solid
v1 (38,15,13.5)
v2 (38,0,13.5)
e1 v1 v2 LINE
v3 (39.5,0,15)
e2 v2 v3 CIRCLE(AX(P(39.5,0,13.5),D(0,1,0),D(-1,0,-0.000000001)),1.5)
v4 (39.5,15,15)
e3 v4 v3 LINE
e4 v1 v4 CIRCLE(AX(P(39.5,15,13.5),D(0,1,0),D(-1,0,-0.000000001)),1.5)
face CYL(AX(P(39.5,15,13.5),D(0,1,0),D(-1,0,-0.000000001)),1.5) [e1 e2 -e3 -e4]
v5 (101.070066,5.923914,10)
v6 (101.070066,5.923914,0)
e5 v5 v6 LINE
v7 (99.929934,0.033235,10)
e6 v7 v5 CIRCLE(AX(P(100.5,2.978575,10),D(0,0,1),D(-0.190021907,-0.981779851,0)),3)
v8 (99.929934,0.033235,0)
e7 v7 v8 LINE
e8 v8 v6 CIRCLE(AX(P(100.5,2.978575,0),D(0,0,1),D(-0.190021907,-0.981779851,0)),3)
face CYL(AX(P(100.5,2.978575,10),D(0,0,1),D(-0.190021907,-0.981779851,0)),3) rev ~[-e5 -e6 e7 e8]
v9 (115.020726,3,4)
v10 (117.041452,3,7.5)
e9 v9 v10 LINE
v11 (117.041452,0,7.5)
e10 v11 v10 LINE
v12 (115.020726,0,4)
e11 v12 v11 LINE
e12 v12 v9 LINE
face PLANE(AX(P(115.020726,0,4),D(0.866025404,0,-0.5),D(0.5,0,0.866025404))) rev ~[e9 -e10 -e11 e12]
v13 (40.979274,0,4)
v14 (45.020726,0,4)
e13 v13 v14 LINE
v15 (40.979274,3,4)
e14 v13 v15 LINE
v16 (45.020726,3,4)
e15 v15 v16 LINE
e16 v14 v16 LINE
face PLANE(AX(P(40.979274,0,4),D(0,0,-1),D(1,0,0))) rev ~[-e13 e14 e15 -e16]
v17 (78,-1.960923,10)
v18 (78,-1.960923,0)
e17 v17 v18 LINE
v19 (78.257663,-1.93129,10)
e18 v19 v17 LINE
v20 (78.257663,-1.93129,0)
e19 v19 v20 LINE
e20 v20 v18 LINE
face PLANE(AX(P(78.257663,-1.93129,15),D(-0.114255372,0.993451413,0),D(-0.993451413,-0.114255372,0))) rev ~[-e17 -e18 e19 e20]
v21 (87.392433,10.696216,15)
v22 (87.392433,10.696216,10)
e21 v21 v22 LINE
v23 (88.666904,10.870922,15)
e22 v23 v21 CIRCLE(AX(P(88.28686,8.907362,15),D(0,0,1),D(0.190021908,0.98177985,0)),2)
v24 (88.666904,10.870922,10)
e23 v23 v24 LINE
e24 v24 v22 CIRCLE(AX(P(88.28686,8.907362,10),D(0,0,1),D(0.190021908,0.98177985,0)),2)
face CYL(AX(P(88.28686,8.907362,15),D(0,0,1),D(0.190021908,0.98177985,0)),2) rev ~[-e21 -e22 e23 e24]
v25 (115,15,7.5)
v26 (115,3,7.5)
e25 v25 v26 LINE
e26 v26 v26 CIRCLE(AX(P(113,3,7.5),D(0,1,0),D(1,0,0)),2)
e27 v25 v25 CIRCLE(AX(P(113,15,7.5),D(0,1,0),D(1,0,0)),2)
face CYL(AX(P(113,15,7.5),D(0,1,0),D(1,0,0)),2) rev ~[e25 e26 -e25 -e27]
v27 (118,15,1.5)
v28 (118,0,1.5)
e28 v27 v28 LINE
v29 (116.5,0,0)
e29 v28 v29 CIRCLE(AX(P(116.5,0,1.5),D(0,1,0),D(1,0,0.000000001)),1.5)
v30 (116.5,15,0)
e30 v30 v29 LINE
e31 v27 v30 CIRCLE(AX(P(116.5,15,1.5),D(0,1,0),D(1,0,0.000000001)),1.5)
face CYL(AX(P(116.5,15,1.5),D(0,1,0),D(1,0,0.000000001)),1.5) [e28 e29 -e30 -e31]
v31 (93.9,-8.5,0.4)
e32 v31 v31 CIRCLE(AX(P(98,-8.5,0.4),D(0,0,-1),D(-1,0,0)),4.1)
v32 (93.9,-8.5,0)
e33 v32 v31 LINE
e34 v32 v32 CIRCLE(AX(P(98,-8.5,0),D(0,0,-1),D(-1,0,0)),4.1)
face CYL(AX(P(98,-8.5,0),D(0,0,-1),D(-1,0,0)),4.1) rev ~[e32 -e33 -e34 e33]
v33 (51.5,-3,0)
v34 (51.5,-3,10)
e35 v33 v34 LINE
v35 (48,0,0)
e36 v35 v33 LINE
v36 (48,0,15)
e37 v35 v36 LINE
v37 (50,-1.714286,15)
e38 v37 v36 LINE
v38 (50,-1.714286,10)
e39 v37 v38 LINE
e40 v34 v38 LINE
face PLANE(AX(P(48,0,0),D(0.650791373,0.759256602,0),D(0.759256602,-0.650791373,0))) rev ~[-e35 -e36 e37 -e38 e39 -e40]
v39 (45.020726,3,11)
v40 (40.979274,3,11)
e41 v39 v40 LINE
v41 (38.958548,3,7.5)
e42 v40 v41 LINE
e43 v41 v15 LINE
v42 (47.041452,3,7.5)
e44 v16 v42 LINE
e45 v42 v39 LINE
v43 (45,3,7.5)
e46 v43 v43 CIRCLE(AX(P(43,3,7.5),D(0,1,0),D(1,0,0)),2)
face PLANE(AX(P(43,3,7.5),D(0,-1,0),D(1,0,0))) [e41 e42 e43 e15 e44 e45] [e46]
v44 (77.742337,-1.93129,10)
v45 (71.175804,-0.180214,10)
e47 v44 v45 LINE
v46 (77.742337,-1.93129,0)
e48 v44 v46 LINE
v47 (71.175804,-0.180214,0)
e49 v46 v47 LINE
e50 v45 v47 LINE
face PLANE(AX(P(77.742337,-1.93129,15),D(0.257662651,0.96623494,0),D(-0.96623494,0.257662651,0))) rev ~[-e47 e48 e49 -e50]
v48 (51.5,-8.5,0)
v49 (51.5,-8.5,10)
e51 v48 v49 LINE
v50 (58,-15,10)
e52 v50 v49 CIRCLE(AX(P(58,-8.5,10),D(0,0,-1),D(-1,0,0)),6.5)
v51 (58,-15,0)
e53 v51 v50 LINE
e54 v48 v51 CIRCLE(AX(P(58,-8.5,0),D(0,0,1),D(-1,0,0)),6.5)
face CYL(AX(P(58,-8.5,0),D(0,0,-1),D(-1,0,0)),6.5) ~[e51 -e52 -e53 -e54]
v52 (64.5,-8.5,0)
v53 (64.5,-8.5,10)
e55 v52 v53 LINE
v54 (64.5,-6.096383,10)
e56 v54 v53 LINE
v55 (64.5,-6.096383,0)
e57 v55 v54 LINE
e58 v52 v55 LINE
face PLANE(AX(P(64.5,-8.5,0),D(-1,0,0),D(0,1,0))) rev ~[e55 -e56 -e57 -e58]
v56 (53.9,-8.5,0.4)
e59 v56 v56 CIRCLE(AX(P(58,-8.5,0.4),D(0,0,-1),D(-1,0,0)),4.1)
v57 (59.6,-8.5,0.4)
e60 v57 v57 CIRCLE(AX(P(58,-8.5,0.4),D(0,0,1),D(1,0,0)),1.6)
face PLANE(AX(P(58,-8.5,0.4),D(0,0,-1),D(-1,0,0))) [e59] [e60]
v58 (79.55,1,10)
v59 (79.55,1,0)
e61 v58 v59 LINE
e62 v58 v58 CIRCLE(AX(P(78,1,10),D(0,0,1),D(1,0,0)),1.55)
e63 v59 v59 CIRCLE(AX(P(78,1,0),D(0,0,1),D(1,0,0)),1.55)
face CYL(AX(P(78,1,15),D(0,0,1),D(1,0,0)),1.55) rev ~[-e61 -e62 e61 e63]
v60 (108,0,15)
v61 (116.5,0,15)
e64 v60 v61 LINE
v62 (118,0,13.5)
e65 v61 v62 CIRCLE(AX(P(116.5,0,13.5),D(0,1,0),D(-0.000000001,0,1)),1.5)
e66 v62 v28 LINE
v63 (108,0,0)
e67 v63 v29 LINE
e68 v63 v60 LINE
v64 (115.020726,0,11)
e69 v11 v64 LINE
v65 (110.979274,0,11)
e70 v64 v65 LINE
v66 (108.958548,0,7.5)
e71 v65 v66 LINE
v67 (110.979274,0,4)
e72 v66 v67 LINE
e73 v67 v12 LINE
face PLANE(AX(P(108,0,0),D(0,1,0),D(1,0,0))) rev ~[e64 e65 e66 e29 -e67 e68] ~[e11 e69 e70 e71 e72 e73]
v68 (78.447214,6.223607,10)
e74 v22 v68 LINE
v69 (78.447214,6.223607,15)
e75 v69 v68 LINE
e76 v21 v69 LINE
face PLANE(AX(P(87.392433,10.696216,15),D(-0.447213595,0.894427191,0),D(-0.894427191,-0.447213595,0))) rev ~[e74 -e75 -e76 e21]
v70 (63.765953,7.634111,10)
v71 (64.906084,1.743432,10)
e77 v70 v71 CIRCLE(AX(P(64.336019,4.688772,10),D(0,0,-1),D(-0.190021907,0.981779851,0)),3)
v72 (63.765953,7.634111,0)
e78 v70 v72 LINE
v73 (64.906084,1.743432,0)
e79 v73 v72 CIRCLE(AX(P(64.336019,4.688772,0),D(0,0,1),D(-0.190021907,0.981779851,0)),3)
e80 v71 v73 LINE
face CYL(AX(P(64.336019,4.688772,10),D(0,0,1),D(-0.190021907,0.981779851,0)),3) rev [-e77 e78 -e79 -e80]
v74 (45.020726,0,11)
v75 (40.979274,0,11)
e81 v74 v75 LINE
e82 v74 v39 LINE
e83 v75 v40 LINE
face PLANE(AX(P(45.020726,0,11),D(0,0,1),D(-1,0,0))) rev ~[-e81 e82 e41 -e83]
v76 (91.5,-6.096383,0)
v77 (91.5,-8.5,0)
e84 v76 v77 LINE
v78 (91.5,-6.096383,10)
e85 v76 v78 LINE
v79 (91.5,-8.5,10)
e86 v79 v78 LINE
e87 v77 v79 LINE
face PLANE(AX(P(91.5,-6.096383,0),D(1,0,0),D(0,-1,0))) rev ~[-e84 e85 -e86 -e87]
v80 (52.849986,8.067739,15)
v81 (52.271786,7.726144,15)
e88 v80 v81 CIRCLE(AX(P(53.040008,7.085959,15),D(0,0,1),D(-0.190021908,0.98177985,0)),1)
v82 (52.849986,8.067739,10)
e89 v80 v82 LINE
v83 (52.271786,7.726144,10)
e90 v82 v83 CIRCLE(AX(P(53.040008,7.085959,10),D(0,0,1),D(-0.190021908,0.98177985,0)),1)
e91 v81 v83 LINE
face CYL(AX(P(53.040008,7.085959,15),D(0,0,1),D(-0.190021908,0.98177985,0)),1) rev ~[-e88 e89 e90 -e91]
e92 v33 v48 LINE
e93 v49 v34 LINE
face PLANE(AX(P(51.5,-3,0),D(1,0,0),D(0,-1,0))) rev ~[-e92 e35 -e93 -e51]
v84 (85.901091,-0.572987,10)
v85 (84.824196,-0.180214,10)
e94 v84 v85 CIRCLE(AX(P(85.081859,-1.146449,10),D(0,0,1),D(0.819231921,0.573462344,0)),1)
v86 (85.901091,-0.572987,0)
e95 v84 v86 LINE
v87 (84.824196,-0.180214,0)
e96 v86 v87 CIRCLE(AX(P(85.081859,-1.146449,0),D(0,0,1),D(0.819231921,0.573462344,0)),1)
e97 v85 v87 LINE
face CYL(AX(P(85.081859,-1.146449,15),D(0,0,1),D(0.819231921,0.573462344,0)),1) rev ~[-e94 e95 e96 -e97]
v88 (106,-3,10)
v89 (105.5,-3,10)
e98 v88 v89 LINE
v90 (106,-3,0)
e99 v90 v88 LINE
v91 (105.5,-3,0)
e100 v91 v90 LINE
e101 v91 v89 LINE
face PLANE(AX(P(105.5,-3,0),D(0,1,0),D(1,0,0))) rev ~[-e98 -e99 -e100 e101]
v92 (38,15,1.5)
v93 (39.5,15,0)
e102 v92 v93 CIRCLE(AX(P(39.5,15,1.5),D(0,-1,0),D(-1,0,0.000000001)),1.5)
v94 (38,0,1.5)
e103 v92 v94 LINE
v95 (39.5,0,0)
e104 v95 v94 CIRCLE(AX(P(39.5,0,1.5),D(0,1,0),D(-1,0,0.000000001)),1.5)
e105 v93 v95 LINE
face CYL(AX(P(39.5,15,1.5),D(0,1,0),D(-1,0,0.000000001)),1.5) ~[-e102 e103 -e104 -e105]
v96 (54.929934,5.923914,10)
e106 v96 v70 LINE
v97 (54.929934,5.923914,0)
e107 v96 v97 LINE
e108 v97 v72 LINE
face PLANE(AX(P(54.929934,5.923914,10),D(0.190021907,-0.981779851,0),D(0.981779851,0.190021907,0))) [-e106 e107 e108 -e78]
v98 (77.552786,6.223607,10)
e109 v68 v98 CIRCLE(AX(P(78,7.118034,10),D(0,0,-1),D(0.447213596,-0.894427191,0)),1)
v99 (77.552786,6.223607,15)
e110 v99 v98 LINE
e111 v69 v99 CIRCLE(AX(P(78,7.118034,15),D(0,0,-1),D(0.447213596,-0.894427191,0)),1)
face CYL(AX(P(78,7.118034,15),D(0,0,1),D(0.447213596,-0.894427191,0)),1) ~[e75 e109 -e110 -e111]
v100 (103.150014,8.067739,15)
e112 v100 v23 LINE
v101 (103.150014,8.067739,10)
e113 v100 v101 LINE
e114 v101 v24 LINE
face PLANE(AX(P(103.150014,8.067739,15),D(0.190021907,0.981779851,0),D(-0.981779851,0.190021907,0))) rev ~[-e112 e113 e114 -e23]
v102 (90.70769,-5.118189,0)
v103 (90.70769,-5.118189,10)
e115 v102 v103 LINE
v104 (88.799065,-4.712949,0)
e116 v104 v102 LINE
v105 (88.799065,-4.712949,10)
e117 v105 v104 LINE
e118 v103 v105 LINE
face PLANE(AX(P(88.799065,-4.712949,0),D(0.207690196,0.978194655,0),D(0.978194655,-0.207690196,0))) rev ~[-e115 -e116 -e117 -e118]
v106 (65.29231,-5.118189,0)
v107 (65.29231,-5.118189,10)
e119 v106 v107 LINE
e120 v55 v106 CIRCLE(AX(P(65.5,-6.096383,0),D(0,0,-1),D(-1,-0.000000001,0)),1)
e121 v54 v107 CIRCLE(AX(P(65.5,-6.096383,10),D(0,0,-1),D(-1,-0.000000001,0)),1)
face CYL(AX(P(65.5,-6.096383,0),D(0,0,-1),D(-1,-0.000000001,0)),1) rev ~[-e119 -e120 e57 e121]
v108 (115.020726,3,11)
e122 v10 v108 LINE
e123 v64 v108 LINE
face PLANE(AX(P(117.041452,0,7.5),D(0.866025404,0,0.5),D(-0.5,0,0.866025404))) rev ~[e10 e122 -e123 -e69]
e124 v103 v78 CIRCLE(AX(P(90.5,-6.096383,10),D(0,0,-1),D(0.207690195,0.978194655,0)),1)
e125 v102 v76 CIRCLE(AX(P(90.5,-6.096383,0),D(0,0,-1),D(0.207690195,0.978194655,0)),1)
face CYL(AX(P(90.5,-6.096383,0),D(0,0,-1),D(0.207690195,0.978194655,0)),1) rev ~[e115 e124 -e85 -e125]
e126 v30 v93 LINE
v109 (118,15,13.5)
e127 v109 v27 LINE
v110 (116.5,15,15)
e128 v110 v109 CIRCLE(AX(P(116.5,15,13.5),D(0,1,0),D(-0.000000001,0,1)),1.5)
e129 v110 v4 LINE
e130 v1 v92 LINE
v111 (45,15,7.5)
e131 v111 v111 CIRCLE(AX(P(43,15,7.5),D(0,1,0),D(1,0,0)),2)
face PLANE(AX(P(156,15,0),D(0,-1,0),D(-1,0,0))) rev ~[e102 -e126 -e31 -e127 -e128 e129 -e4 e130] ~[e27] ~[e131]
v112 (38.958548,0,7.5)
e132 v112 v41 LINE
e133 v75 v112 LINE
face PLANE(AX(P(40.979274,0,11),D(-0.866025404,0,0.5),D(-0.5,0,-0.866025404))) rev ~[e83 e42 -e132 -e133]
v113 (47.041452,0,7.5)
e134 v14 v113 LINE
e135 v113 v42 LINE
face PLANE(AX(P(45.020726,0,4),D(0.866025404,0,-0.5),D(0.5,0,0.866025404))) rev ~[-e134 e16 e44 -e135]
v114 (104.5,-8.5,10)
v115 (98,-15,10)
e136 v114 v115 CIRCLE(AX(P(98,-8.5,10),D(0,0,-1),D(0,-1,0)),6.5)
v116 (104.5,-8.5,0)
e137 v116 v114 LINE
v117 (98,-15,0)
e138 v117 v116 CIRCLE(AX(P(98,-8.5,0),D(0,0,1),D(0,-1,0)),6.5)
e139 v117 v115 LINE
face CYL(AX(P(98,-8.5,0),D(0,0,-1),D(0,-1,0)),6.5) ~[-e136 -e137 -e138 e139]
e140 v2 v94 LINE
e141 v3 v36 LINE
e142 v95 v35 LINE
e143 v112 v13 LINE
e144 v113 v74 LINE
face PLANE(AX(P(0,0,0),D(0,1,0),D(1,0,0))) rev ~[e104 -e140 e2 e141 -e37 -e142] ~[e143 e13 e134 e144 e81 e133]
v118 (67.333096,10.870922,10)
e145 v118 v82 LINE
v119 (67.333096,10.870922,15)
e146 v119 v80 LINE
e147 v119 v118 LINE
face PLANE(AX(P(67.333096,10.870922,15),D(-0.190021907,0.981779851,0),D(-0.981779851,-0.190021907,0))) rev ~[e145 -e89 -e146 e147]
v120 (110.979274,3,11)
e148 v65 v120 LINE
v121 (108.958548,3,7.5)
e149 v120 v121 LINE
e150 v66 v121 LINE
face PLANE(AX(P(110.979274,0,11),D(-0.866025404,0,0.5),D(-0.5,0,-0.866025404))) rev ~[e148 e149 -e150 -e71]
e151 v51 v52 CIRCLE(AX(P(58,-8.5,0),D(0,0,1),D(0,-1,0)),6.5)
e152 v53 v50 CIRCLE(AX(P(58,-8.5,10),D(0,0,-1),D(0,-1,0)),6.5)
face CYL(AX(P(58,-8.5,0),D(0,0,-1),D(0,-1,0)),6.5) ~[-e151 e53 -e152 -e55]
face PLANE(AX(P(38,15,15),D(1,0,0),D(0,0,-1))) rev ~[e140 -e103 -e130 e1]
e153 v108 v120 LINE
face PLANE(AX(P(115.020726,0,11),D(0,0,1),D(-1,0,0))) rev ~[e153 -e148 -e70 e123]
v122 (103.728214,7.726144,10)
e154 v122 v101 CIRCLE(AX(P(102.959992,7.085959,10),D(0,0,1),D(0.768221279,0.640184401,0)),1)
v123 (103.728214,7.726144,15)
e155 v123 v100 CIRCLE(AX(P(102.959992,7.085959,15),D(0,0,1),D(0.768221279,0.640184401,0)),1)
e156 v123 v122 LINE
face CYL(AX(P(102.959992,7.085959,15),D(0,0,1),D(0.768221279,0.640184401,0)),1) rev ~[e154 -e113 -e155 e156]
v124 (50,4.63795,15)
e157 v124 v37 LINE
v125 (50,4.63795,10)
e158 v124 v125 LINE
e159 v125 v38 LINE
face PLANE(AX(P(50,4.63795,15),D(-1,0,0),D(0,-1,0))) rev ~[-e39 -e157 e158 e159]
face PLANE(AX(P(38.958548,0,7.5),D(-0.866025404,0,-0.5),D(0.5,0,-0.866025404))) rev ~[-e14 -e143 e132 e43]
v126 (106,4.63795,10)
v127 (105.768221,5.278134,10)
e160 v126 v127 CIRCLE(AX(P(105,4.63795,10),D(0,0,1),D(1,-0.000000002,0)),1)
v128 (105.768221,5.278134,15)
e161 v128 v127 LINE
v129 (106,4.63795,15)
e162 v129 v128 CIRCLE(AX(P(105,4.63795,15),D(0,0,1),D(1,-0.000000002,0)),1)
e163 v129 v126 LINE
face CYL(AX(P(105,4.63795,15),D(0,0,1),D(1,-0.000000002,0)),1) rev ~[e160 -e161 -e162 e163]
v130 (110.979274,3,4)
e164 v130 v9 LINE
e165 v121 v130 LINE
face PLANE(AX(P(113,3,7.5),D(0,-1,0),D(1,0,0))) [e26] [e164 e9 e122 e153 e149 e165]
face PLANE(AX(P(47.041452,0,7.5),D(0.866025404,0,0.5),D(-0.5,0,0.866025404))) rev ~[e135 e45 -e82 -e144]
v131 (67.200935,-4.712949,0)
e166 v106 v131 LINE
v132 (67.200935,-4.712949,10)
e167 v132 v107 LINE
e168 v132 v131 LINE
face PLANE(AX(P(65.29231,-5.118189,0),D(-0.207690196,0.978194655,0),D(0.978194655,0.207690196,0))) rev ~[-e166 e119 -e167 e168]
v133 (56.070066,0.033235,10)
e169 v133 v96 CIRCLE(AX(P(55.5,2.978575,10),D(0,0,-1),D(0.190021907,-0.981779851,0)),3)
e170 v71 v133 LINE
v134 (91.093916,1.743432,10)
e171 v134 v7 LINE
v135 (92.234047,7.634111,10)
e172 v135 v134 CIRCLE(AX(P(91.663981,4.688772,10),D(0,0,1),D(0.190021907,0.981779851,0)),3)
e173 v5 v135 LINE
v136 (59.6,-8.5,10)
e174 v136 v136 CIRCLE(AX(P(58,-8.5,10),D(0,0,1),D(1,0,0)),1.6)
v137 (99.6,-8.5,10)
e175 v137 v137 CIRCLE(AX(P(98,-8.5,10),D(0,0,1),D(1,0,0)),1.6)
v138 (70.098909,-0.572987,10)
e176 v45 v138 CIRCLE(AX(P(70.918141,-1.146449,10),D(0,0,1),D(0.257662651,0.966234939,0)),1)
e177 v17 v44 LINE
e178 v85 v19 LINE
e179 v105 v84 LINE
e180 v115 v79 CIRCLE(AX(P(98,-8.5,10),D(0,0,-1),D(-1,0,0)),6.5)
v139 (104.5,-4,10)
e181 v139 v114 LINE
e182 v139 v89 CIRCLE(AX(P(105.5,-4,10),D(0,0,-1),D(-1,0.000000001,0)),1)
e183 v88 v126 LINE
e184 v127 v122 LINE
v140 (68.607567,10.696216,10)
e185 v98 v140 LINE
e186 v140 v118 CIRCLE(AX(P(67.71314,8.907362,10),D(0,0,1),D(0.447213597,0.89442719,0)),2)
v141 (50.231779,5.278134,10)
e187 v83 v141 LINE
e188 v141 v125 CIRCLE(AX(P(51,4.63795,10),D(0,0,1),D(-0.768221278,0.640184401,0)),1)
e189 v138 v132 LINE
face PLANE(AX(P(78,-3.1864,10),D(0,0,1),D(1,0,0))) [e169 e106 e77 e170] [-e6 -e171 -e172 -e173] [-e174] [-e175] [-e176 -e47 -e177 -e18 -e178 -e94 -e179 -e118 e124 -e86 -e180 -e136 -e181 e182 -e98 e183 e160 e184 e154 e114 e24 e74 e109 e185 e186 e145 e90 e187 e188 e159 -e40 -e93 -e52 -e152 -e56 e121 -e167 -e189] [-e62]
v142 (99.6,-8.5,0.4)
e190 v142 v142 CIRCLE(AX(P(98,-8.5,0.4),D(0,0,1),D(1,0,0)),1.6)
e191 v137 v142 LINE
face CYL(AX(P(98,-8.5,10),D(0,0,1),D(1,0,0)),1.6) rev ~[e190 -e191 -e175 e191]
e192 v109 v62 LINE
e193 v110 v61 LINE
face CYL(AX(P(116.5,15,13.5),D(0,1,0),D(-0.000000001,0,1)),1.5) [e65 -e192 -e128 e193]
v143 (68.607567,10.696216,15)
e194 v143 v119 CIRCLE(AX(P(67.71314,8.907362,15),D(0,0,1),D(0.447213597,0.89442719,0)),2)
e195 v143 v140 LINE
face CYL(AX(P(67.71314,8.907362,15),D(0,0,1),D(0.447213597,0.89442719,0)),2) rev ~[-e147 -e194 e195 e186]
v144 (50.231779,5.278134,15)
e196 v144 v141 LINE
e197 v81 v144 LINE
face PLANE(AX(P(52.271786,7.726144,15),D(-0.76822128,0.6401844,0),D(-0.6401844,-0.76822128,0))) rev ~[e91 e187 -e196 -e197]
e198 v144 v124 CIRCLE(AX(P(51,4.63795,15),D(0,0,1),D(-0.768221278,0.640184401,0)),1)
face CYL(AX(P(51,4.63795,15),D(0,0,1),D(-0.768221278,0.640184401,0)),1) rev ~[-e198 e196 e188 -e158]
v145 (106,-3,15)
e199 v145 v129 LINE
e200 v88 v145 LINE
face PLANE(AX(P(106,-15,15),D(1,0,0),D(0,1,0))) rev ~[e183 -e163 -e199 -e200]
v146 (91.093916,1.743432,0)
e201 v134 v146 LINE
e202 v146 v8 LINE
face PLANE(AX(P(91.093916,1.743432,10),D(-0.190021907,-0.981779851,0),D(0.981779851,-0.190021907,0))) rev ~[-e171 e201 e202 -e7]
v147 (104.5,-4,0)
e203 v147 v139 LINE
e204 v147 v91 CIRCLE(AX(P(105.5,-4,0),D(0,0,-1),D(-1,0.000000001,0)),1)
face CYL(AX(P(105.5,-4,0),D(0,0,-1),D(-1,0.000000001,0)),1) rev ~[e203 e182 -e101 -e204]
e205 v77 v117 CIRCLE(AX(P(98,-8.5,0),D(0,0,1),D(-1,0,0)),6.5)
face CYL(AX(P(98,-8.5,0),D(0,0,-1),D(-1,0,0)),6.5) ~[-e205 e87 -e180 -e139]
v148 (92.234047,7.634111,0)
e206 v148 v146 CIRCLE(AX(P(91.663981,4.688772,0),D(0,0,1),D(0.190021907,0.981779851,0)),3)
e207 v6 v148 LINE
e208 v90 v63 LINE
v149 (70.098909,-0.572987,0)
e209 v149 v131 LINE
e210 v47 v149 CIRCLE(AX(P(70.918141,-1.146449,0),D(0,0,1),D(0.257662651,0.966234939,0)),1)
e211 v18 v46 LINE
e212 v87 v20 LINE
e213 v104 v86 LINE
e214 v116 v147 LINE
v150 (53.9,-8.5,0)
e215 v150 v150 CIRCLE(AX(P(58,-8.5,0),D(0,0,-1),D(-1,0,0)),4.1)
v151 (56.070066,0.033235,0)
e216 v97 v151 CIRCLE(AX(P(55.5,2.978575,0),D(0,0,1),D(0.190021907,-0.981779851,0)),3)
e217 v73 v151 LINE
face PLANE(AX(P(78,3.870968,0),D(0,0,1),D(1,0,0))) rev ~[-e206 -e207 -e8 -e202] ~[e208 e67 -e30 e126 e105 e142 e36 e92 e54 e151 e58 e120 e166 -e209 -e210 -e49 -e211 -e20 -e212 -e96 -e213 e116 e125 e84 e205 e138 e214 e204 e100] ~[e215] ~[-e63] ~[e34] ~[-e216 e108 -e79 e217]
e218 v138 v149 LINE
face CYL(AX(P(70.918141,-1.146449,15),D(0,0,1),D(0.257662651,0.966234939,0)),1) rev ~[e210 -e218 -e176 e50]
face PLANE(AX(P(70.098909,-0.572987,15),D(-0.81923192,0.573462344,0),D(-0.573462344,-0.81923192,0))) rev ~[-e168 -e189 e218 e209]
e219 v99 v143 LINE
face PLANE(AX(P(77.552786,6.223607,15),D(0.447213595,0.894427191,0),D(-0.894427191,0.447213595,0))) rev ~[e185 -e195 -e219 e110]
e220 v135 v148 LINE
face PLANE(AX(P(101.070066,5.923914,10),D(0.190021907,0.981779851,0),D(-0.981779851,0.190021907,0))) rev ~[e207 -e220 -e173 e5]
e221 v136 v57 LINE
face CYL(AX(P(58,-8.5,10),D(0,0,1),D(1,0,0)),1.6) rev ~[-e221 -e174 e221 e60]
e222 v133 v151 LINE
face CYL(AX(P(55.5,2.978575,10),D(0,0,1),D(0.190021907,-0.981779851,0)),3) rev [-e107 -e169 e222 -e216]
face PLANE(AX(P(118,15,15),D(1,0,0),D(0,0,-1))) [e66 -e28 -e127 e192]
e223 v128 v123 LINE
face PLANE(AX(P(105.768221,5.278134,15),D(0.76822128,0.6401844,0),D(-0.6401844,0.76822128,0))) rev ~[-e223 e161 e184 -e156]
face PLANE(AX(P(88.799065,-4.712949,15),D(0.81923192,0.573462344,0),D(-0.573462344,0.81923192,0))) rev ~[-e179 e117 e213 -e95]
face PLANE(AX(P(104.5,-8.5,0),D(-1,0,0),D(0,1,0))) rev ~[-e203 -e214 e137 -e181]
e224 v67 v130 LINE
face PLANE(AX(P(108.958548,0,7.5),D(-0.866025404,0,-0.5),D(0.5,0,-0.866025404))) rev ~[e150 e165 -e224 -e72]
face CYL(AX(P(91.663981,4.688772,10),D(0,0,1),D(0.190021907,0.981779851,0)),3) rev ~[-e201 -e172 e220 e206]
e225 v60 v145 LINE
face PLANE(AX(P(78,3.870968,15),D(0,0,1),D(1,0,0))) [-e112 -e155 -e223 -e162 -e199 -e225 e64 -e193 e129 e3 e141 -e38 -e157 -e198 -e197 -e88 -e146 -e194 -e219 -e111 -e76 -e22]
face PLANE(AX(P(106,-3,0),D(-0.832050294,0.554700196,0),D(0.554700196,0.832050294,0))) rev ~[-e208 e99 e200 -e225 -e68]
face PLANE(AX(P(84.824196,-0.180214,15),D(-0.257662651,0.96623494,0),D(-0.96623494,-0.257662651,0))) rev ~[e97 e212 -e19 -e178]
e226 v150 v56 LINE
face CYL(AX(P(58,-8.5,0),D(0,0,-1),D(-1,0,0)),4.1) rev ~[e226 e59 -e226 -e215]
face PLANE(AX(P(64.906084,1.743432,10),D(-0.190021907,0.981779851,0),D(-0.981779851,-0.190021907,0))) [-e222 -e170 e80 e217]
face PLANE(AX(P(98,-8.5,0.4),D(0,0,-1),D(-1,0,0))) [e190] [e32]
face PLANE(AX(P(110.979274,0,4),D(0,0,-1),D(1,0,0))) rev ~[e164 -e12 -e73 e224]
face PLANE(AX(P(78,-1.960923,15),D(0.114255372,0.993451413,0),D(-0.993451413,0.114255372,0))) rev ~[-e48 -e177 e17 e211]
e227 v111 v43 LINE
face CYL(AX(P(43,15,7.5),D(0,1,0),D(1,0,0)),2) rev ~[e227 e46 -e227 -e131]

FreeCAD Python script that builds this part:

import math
import FreeCAD as App
import Part
import Sketcher
from FreeCAD import Vector
Q = App.Units.Quantity

doc = App.newDocument("Part")
body = doc.addObject("PartDesign::Body", "Body")

# Sketch on XY plane
sketch1 = body.newObject("Sketcher::SketchObject", "Sketch")
sketch1.AttachmentSupport = (doc.getObject("XY_Plane"), [""])
sketch1.MapMode = "FlatFace"
sketch1.addGeometry([
    Part.LineSegment(Vector(0, 0, 0), Vector(48, 0, 0)),  # 0
    Part.LineSegment(Vector(48, 0, 0), Vector(48, -15, 0)),  # 1
    Part.LineSegment(Vector(48, -15, 0), Vector(108, -15, 0)),  # 2
    Part.LineSegment(Vector(108, -15, 0), Vector(108, 0, 0)),  # 3
    Part.LineSegment(Vector(108, 0, 0), Vector(156, 0, 0)),  # 4
    Part.LineSegment(Vector(156, 0, 0), Vector(156, 15, 0)),  # 5
    Part.LineSegment(Vector(156, 15, 0), Vector(0, 15, 0)),  # 6
    Part.LineSegment(Vector(0, 15, 0), Vector(0, 0, 0)),  # 7
], False)
sketch1.addConstraint([
    Sketcher.Constraint("Coincident", 0, 2, 1, 1),
    Sketcher.Constraint("Coincident", 1, 2, 2, 1),
    Sketcher.Constraint("Coincident", 2, 2, 3, 1),
    Sketcher.Constraint("Coincident", 3, 2, 4, 1),
    Sketcher.Constraint("Coincident", 4, 2, 5, 1),
    Sketcher.Constraint("Coincident", 5, 2, 6, 1),
    Sketcher.Constraint("Coincident", 6, 2, 7, 1),
    Sketcher.Constraint("Coincident", 7, 2, 0, 1),
    Sketcher.Constraint("Horizontal", 0),
    Sketcher.Constraint("Vertical", 1),
    Sketcher.Constraint("Horizontal", 2),
    Sketcher.Constraint("Vertical", 3),
    Sketcher.Constraint("Horizontal", 4),
    Sketcher.Constraint("Vertical", 5),
    Sketcher.Constraint("Horizontal", 6),
    Sketcher.Constraint("Vertical", 7),
    Sketcher.Constraint("Coincident", 7, 2, -1, 1),
    Sketcher.Constraint("PointOnObject", 3, 2, -1),
    Sketcher.Constraint("Equal", 0, 4),
    Sketcher.Constraint("Equal", 3, 5),
    Sketcher.Constraint("DistanceX", 0, 1, 0, 2, 48.0),
    Sketcher.Constraint("DistanceX", 2, 1, 2, 2, 60.0),
    Sketcher.Constraint("DistanceY", 1, 2, 1, 1, 15.0),
])
pad1 = body.newObject("PartDesign::Pad", "Pad")
pad1.Profile = sketch1
pad1.Length = 15

# Sketch on XY plane
sketch2 = body.newObject("Sketcher::SketchObject", "Sketch001")
sketch2.AttachmentSupport = (doc.getObject("XY_Plane"), [""])
sketch2.MapMode = "FlatFace"
sketch2.AttachmentOffset = App.Placement(Vector(0, 0, 15), App.Rotation())
sketch2.addGeometry([
    Part.LineSegment(Vector(77.552786, 6.223607, 0), Vector(68.607567, 10.696216, 0)),  # 0
    Part.ArcOfCircle(Part.Circle(Vector(67.71314, 8.907362, 0), Vector(0, 0, 1), 2), math.radians(63.434949), math.radians(100.954063)),  # 1
    Part.LineSegment(Vector(67.333096, 10.870922, 0), Vector(52.849986, 8.067739, 0)),  # 2
    Part.ArcOfCircle(Part.Circle(Vector(53.040008, 7.085959, 0), Vector(0, 0, 1), 1), math.radians(100.954063), math.radians(140.194429)),  # 3
    Part.LineSegment(Vector(52.271786, 7.726144, 0), Vector(50.231779, 5.278134, 0)),  # 4
    Part.ArcOfCircle(Part.Circle(Vector(51, 4.63795, 0), Vector(0, 0, 1), 1), math.radians(140.194429), math.radians(180)),  # 5
    Part.LineSegment(Vector(50, 4.63795, 0), Vector(50, -15, 0)),  # 6
    Part.LineSegment(Vector(50, -15, 0), Vector(106, -15, 0)),  # 7
    Part.LineSegment(Vector(106, -15, 0), Vector(106, 4.63795, 0)),  # 8
    Part.ArcOfCircle(Part.Circle(Vector(105, 4.63795, 0), Vector(0, 0, 1), 1), math.radians(0), math.radians(39.805571)),  # 9
    Part.LineSegment(Vector(105.768221, 5.278134, 0), Vector(103.728214, 7.726144, 0)),  # 10
    Part.ArcOfCircle(Part.Circle(Vector(102.959992, 7.085959, 0), Vector(0, 0, 1), 1), math.radians(39.805571), math.radians(79.045937)),  # 11
    Part.LineSegment(Vector(103.150014, 8.067739, 0), Vector(88.666904, 10.870922, 0)),  # 12
    Part.ArcOfCircle(Part.Circle(Vector(88.28686, 8.907362, 0), Vector(0, 0, 1), 2), math.radians(79.045937), math.radians(116.565051)),  # 13
    Part.LineSegment(Vector(87.392433, 10.696216, 0), Vector(78.447214, 6.223607, 0)),  # 14
    Part.ArcOfCircle(Part.Circle(Vector(78, 7.118034, 0), Vector(0, 0, 1), 1), math.radians(-116.565051), math.radians(-63.434949)),  # 15
], False)
sketch2.addConstraint([
    Sketcher.Constraint("Tangent", 0, 2, 1, 1),
    Sketcher.Constraint("Tangent", 1, 2, 2, 1),
    Sketcher.Constraint("Tangent", 2, 2, 3, 1),
    Sketcher.Constraint("Tangent", 3, 2, 4, 1),
    Sketcher.Constraint("Tangent", 4, 2, 5, 1),
    Sketcher.Constraint("Tangent", 5, 2, 6, 1),
    Sketcher.Constraint("Coincident", 6, 2, 7, 1),
    Sketcher.Constraint("Coincident", 7, 2, 8, 1),
    Sketcher.Constraint("Tangent", 8, 2, 9, 1),
    Sketcher.Constraint("Tangent", 9, 2, 10, 1),
    Sketcher.Constraint("Tangent", 10, 2, 11, 1),
    Sketcher.Constraint("Tangent", 11, 2, 12, 1),
    Sketcher.Constraint("Tangent", 12, 2, 13, 1),
    Sketcher.Constraint("Tangent", 13, 2, 14, 1),
    Sketcher.Constraint("Tangent", 14, 2, 15, 2),
    Sketcher.Constraint("Tangent", 15, 1, 0, 1),
    Sketcher.Constraint("Vertical", 6),
    Sketcher.Constraint("Horizontal", 7),
    Sketcher.Constraint("Vertical", 8),
    Sketcher.Constraint("Equal", 3, 5),
    Sketcher.Constraint("Equal", 5, 9),
    Sketcher.Constraint("Equal", 9, 11),
    Sketcher.Constraint("Equal", 1, 13),
    Sketcher.Constraint("Equal", 11, 15),
    Sketcher.Constraint("Horizontal", 5, 3, 9, 3),
    Sketcher.Constraint("Horizontal", 3, 3, 11, 3),
    Sketcher.Constraint("Horizontal", 1, 3, 13, 3),
    Sketcher.Constraint("Horizontal", 4, 2, 9, 2),
    Sketcher.Constraint("Horizontal", 1, 2, 12, 2),
    Sketcher.Constraint("Horizontal", 0, 2, 13, 2),
    Sketcher.Constraint("Radius", 1, 2.0),
    Sketcher.Constraint("Radius", 3, 1.0),
    Sketcher.Constraint("DistanceX", 7, 1, 7, 2, 56.0),
    Sketcher.Constraint("DistanceX", -1, 1, 5, 3, 51.0),
    Sketcher.Constraint("DistanceY", 6, 2, -1, 1, 15.0),
    Sketcher.Constraint("DistanceY", 6, 2, 6, 1, 19.63795),
    Sketcher.Constraint("DistanceX", 3, 2, 2, 2, 0.578199),
    Sketcher.Constraint("Distance", 0, 10.001059),
    Sketcher.Constraint("Distance", 2, 14.751892),
    Sketcher.Constraint("DistanceX", -1, 1, 1, 3, 67.71314),
    Sketcher.Constraint("DistanceY", -1, 1, 3, 3, 7.085959),
])
pocket1 = body.newObject("PartDesign::Pocket", "Pocket")
pocket1.Profile = sketch2
pocket1.Length = 5

# Sketch on XY plane
sketch3 = body.newObject("Sketcher::SketchObject", "Sketch002")
sketch3.AttachmentSupport = (doc.getObject("XY_Plane"), [""])
sketch3.MapMode = "FlatFace"
sketch3.AttachmentOffset = App.Placement(Vector(0, 0, 15), App.Rotation())
sketch3.addGeometry([
    Part.LineSegment(Vector(78.257663, -1.93129, 0), Vector(78, -1.960923, 0)),  # 0
    Part.LineSegment(Vector(78, -1.960923, 0), Vector(77.742337, -1.93129, 0)),  # 1
    Part.LineSegment(Vector(77.742337, -1.93129, 0), Vector(71.175804, -0.180214, 0)),  # 2
    Part.ArcOfCircle(Part.Circle(Vector(70.918141, -1.146449, 0), Vector(0, 0, 1), 1), math.radians(75.068583), math.radians(145.00798)),  # 3
    Part.LineSegment(Vector(70.098909, -0.572987, 0), Vector(67.200935, -4.712949, 0)),  # 4
    Part.ArcOfCircle(Part.Circle(Vector(68.020167, -5.286412, 0), Vector(0, 0, 1), 1), math.radians(145.00798), math.radians(183.627866)),  # 5
    Part.LineSegment(Vector(67.022171, -5.349688, 0), Vector(67.574639, -14.063276, 0)),  # 6
    Part.ArcOfCircle(Part.Circle(Vector(68.572635, -14, 0), Vector(0, 0, 1), 1), math.radians(-176.372134), math.radians(-90)),  # 7
    Part.LineSegment(Vector(68.572635, -15, 0), Vector(87.427365, -15, 0)),  # 8
    Part.ArcOfCircle(Part.Circle(Vector(87.427365, -14, 0), Vector(0, 0, 1), 1), math.radians(-90), math.radians(-3.627866)),  # 9
    Part.LineSegment(Vector(88.425361, -14.063276, 0), Vector(88.977829, -5.349688, 0)),  # 10
    Part.ArcOfCircle(Part.Circle(Vector(87.979833, -5.286412, 0), Vector(0, 0, 1), 1), math.radians(-3.627866), math.radians(34.99202)),  # 11
    Part.LineSegment(Vector(88.799065, -4.712949, 0), Vector(85.901091, -0.572987, 0)),  # 12
    Part.ArcOfCircle(Part.Circle(Vector(85.081859, -1.146449, 0), Vector(0, 0, 1), 1), math.radians(34.99202), math.radians(104.931417)),  # 13
    Part.LineSegment(Vector(84.824196, -0.180214, 0), Vector(78.257663, -1.93129, 0)),  # 14
], False)
sketch3.addConstraint([
    Sketcher.Constraint("Coincident", 0, 2, 1, 1),
    Sketcher.Constraint("Coincident", 1, 2, 2, 1),
    Sketcher.Constraint("Tangent", 2, 2, 3, 1),
    Sketcher.Constraint("Tangent", 3, 2, 4, 1),
    Sketcher.Constraint("Tangent", 4, 2, 5, 1),
    Sketcher.Constraint("Tangent", 5, 2, 6, 1),
    Sketcher.Constraint("Tangent", 6, 2, 7, 1),
    Sketcher.Constraint("Tangent", 7, 2, 8, 1),
    Sketcher.Constraint("Tangent", 8, 2, 9, 1),
    Sketcher.Constraint("Tangent", 9, 2, 10, 1),
    Sketcher.Constraint("Tangent", 10, 2, 11, 1),
    Sketcher.Constraint("Tangent", 11, 2, 12, 1),
    Sketcher.Constraint("Tangent", 12, 2, 13, 1),
    Sketcher.Constraint("Tangent", 13, 2, 14, 1),
    Sketcher.Constraint("Coincident", 14, 2, 0, 1),
    Sketcher.Constraint("Horizontal", 8),
    Sketcher.Constraint("Equal", 3, 5),
    Sketcher.Constraint("Equal", 5, 7),
    Sketcher.Constraint("Equal", 7, 9),
    Sketcher.Constraint("Equal", 9, 11),
    Sketcher.Constraint("Equal", 11, 13),
    Sketcher.Constraint("Horizontal", 5, 3, 11, 3),
    Sketcher.Constraint("Horizontal", 3, 3, 13, 3),
    Sketcher.Constraint("Horizontal", 6, 2, 9, 2),
    Sketcher.Constraint("Horizontal", 4, 2, 11, 2),
    Sketcher.Constraint("Horizontal", 2, 2, 13, 2),
    Sketcher.Constraint("Horizontal", 1, 2, 14, 2),
    Sketcher.Constraint("Equal", 0, 1),
    Sketcher.Constraint("Radius", 3, 1.0),
    Sketcher.Constraint("DistanceY", 7, 3, -1, 1, 14.0),
    Sketcher.Constraint("DistanceX", -1, 1, 0, 2, 78.0),
    Sketcher.Constraint("Distance", 2, 6.796001),
    Sketcher.Constraint("DistanceX", 8, 1, 8, 2, 18.854731),
    Sketcher.Constraint("DistanceX", 5, 3, 9, 3, 19.407198),
    Sketcher.Constraint("DistanceY", 4, 2, 3, 3, 3.5665),
    Sketcher.Constraint("DistanceX", 4, 2, 7, 3, 1.371699),
    Sketcher.Constraint("Distance", 0, 0.259361),
    Sketcher.Constraint("DistanceY", 3, 3, -1, 1, 1.146449),
    Sketcher.Constraint("DistanceY", 1, 2, -1, 1, 1.93129),
])
pocket2 = body.newObject("PartDesign::Pocket", "Pocket001")
pocket2.Profile = sketch3
pocket2.Length = 35

# Sketch on XY plane
sketch4 = body.newObject("Sketcher::SketchObject", "Sketch003")
sketch4.AttachmentSupport = (doc.getObject("XY_Plane"), [""])
sketch4.MapMode = "FlatFace"
sketch4.AttachmentOffset = App.Placement(Vector(0, 0, 15), App.Rotation())
sketch4.addGeometry(Part.Circle(Vector(78, 1, 0), Vector(0, 0, 1), 1.55), False)
sketch4.addConstraint([
    Sketcher.Constraint("Diameter", 0, 3.1),
    Sketcher.Constraint("DistanceX", -1, 1, 0, 3, 78.0),
    Sketcher.Constraint("DistanceY", -1, 1, 0, 3, 1.0),
])
pocket3 = body.newObject("PartDesign::Pocket", "Pocket002")
pocket3.Profile = sketch4
pocket3.Length = 32

# Sketch on XY plane
sketch5 = body.newObject("Sketcher::SketchObject", "Sketch004")
sketch5.AttachmentSupport = (doc.getObject("XY_Plane"), [""])
sketch5.MapMode = "FlatFace"
sketch5.AttachmentOffset = App.Placement(Vector(0, 0, 10), App.Rotation())
sketch5.addGeometry([
    Part.Circle(Vector(98, -8.5, 0), Vector(0, 0, 1), 1.6),  # 0
    Part.Circle(Vector(58, -8.5, 0), Vector(0, 0, 1), 1.6),  # 1
    Part.LineSegment(Vector(63.765953, 7.634111, 0), Vector(54.929934, 5.923914, 0)),  # 2
    Part.ArcOfCircle(Part.Circle(Vector(55.5, 2.978575, 0), Vector(0, 0, 1), 3), math.radians(100.954063), math.radians(280.954063)),  # 3
    Part.LineSegment(Vector(56.070066, 0.033235, 0), Vector(64.906084, 1.743432, 0)),  # 4
    Part.ArcOfCircle(Part.Circle(Vector(64.336019, 4.688772, 0), Vector(0, 0, 1), 3), math.radians(-79.045937), math.radians(100.954063)),  # 5
    Part.LineSegment(Vector(101.070066, 5.923914, 0), Vector(92.234047, 7.634111, 0)),  # 6
    Part.ArcOfCircle(Part.Circle(Vector(91.663981, 4.688772, 0), Vector(0, 0, 1), 3), math.radians(79.045937), math.radians(259.045937)),  # 7
    Part.LineSegment(Vector(91.093916, 1.743432, 0), Vector(99.929934, 0.033235, 0)),  # 8
    Part.ArcOfCircle(Part.Circle(Vector(100.5, 2.978575, 0), Vector(0, 0, 1), 3), math.radians(-100.954063), math.radians(79.045937)),  # 9
], False)
sketch5.addConstraint([
    Sketcher.Constraint("Tangent", 2, 2, 3, 1),
    Sketcher.Constraint("Tangent", 3, 2, 4, 1),
    Sketcher.Constraint("Tangent", 4, 2, 5, 1),
    Sketcher.Constraint("Tangent", 5, 2, 2, 1),
    Sketcher.Constraint("Tangent", 6, 2, 7, 1),
    Sketcher.Constraint("Tangent", 7, 2, 8, 1),
    Sketcher.Constraint("Tangent", 8, 2, 9, 1),
    Sketcher.Constraint("Tangent", 9, 2, 6, 1),
    Sketcher.Constraint("Equal", 0, 1),
    Sketcher.Constraint("Equal", 3, 5),
    Sketcher.Constraint("Equal", 5, 7),
    Sketcher.Constraint("Equal", 7, 9),
    Sketcher.Constraint("Horizontal", 0, 3, 1, 3),
    Sketcher.Constraint("Horizontal", 5, 3, 7, 3),
    Sketcher.Constraint("Horizontal", 3, 3, 9, 3),
    Sketcher.Constraint("Horizontal", 5, 2, 6, 2),
    Sketcher.Constraint("Radius", 3, 3.0),
    Sketcher.Constraint("Diameter", 0, 3.2),
    Sketcher.Constraint("Distance", 2, 9.0),
    Sketcher.Constraint("DistanceX", -1, 1, 0, 3, 98.0),
    Sketcher.Constraint("DistanceX", -1, 1, 1, 3, 58.0),
    Sketcher.Constraint("DistanceX", 3, 3, 9, 3, 45.0),
    Sketcher.Constraint("DistanceY", 0, 3, -1, 1, 8.5),
    Sketcher.Constraint("DistanceX", -1, 1, 3, 3, 55.5),
    Sketcher.Constraint("DistanceX", -1, 1, 5, 3, 64.336019),
    Sketcher.Constraint("DistanceY", -1, 1, 5, 3, 4.688772),
])
pocket4 = body.newObject("PartDesign::Pocket", "Pocket003")
pocket4.Profile = sketch5
pocket4.Length = 32

# Sketch on XY plane
sketch6 = body.newObject("Sketcher::SketchObject", "Sketch005")
sketch6.AttachmentSupport = (doc.getObject("XY_Plane"), [""])
sketch6.MapMode = "FlatFace"
sketch6.addGeometry([
    Part.Circle(Vector(58, -8.5, 0), Vector(0, 0, 1), 4.1),
    Part.Circle(Vector(98, -8.5, 0), Vector(0, 0, 1), 4.1),
], False)
sketch6.addConstraint([
    Sketcher.Constraint("Equal", 0, 1),
    Sketcher.Constraint("Horizontal", 0, 3, 1, 3),
    Sketcher.Constraint("Diameter", 0, 8.2),
    Sketcher.Constraint("DistanceX", -1, 1, 0, 3, 58.0),
    Sketcher.Constraint("DistanceX", -1, 1, 1, 3, 98.0),
    Sketcher.Constraint("DistanceY", 0, 3, -1, 1, 8.5),
])
pocket5 = body.newObject("PartDesign::Pocket", "Pocket004")
pocket5.Profile = sketch6
pocket5.Length = 0.4
pocket5.Reversed = True

# Sketch on XY plane
sketch7 = body.newObject("Sketcher::SketchObject", "Sketch006")
sketch7.AttachmentSupport = (doc.getObject("XY_Plane"), [""])
sketch7.MapMode = "FlatFace"
sketch7.addGeometry([
    Part.LineSegment(Vector(108, -15, 0), Vector(98, -15, 0)),  # 0
    Part.ArcOfCircle(Part.Circle(Vector(98, -8.5, 0), Vector(0, 0, 1), 6.5), math.radians(-90), math.radians(0)),  # 1
    Part.LineSegment(Vector(104.5, -8.5, 0), Vector(104.5, -4, 0)),  # 2
    Part.ArcOfCircle(Part.Circle(Vector(105.5, -4, 0), Vector(0, 0, 1), 1), math.radians(90), math.radians(180)),  # 3
    Part.LineSegment(Vector(105.5, -3, 0), Vector(106, -3, 0)),  # 4
    Part.LineSegment(Vector(106, -3, 0), Vector(108, 0, 0)),  # 5
    Part.LineSegment(Vector(108, 0, 0), Vector(108, -15, 0)),  # 6
    Part.LineSegment(Vector(91.5, -6.096383, 0), Vector(91.5, -8.5, 0)),  # 7
    Part.ArcOfCircle(Part.Circle(Vector(98, -8.5, 0), Vector(0, 0, 1), 6.5), math.radians(180), math.radians(270)),  # 8
    Part.LineSegment(Vector(98, -15, 0), Vector(87.427365, -15, 0)),  # 9
    Part.LineSegment(Vector(87.427365, -15, 0), Vector(88.799065, -4.712949, 0)),  # 10
    Part.LineSegment(Vector(88.799065, -4.712949, 0), Vector(90.70769, -5.118189, 0)),  # 11
    Part.ArcOfCircle(Part.Circle(Vector(90.5, -6.096383, 0), Vector(0, 0, 1), 1), math.radians(0), math.radians(78.012974)),  # 12
    Part.ArcOfCircle(Part.Circle(Vector(58, -8.5, 0), Vector(0, 0, 1), 6.5), math.radians(180), math.radians(270)),  # 13
    Part.LineSegment(Vector(58, -15, 0), Vector(48, -15, 0)),  # 14
    Part.LineSegment(Vector(48, -15, 0), Vector(48, 0, 0)),  # 15
    Part.LineSegment(Vector(48, 0, 0), Vector(51.5, -3, 0)),  # 16
    Part.LineSegment(Vector(51.5, -3, 0), Vector(51.5, -8.5, 0)),  # 17
    Part.LineSegment(Vector(67.200935, -4.712949, 0), Vector(68.572635, -15, 0)),  # 18
    Part.LineSegment(Vector(68.572635, -15, 0), Vector(58, -15, 0)),  # 19
    Part.ArcOfCircle(Part.Circle(Vector(58, -8.5, 0), Vector(0, 0, 1), 6.5), math.radians(-90), math.radians(0)),  # 20
    Part.LineSegment(Vector(64.5, -8.5, 0), Vector(64.5, -6.096383, 0)),  # 21
    Part.ArcOfCircle(Part.Circle(Vector(65.5, -6.096383, 0), Vector(0, 0, 1), 1), math.radians(101.987026), math.radians(180)),  # 22
    Part.LineSegment(Vector(65.29231, -5.118189, 0), Vector(67.200935, -4.712949, 0)),  # 23
], False)
sketch7.addConstraint([
    Sketcher.Constraint("Tangent", 0, 2, 1, 1),
    Sketcher.Constraint("Tangent", 1, 2, 2, 1),
    Sketcher.Constraint("Tangent", 2, 2, 3, 2),
    Sketcher.Constraint("Tangent", 3, 1, 4, 1),
    Sketcher.Constraint("Coincident", 4, 2, 5, 1),
    Sketcher.Constraint("Coincident", 5, 2, 6, 1),
    Sketcher.Constraint("Coincident", 6, 2, 0, 1),
    Sketcher.Constraint("Tangent", 7, 2, 8, 1),
    Sketcher.Constraint("Tangent", 8, 2, 9, 1),
    Sketcher.Constraint("Coincident", 9, 2, 10, 1),
    Sketcher.Constraint("Coincident", 10, 2, 11, 1),
    Sketcher.Constraint("Tangent", 11, 2, 12, 2),
    Sketcher.Constraint("Tangent", 12, 1, 7, 1),
    Sketcher.Constraint("Tangent", 13, 2, 14, 1),
    Sketcher.Constraint("Coincident", 14, 2, 15, 1),
    Sketcher.Constraint("Coincident", 15, 2, 16, 1),
    Sketcher.Constraint("Coincident", 16, 2, 17, 1),
    Sketcher.Constraint("Tangent", 17, 2, 13, 1),
    Sketcher.Constraint("Coincident", 18, 2, 19, 1),
    Sketcher.Constraint("Tangent", 19, 2, 20, 1),
    Sketcher.Constraint("Tangent", 20, 2, 21, 1),
    Sketcher.Constraint("Tangent", 21, 2, 22, 2),
    Sketcher.Constraint("Tangent", 22, 1, 23, 1),
    Sketcher.Constraint("Coincident", 23, 2, 18, 1),
    Sketcher.Constraint("Horizontal", 0),
    Sketcher.Constraint("Vertical", 2),
    Sketcher.Constraint("Horizontal", 4),
    Sketcher.Constraint("Vertical", 6),
    Sketcher.Constraint("Vertical", 7),
    Sketcher.Constraint("Horizontal", 9),
    Sketcher.Constraint("Horizontal", 14),
    Sketcher.Constraint("Vertical", 15),
    Sketcher.Constraint("Vertical", 17),
    Sketcher.Constraint("Horizontal", 19),
    Sketcher.Constraint("Vertical", 21),
    Sketcher.Constraint("Coincident", 8, 3, 1, 3),
    Sketcher.Constraint("Coincident", 20, 3, 13, 3),
    Sketcher.Constraint("Equal", 1, 8),
    Sketcher.Constraint("Equal", 3, 12),
    Sketcher.Constraint("Equal", 8, 13),
    Sketcher.Constraint("Equal", 13, 20),
    Sketcher.Constraint("Equal", 12, 22),
    Sketcher.Constraint("PointOnObject", 5, 2, -1),
    Sketcher.Constraint("PointOnObject", 15, 2, -1),
    Sketcher.Constraint("Horizontal", 8, 3, 13, 3),
    Sketcher.Constraint("Horizontal", 12, 3, 22, 3),
    Sketcher.Constraint("Horizontal", 4, 2, 16, 2),
    Sketcher.Constraint("Horizontal", 11, 2, 22, 1),
    Sketcher.Constraint("Horizontal", 10, 2, 23, 2),
    Sketcher.Constraint("Equal", 0, 14),
    Sketcher.Constraint("Equal", 9, 19),
    Sketcher.Constraint("Radius", 3, 1.0),
    Sketcher.Constraint("Radius", 1, 6.5),
    Sketcher.Constraint("DistanceX", 0, 2, 0, 1, 10.0),
    Sketcher.Constraint("DistanceY", 6, 2, 6, 1, 15.0),
    Sketcher.Constraint("DistanceX", 4, 1, 4, 2, 0.5),
    Sketcher.Constraint("DistanceY", 2, 1, 2, 2, 4.5),
    Sketcher.Constraint("DistanceX", -1, 1, 1, 3, 98.0),
    Sketcher.Constraint("DistanceX", -1, 1, 13, 3, 58.0),
    Sketcher.Constraint("Distance", 10, 10.3781),
    Sketcher.Constraint("DistanceX", 9, 2, 10, 2, 1.371699),
    Sketcher.Constraint("Distance", 11, 1.951172),
    Sketcher.Constraint("DistanceX", 9, 2, 9, 1, 10.572635),
])
pocket6 = body.newObject("PartDesign::Pocket", "Pocket005")
pocket6.Profile = sketch7
pocket6.Length = 32
pocket6.Reversed = True

# Sketch on XZ plane
sketch8 = body.newObject("Sketcher::SketchObject", "Sketch007")
sketch8.AttachmentSupport = (doc.getObject("XZ_Plane"), [""])
sketch8.MapMode = "FlatFace"
sketch8.AttachmentOffset = App.Placement(Vector(0, 0, -15), App.Rotation())
sketch8.addGeometry([
    Part.Circle(Vector(113, 7.5, 0), Vector(0, 0, 1), 2),
    Part.Circle(Vector(43, 7.5, 0), Vector(0, 0, 1), 2),
], False)
sketch8.addConstraint([
    Sketcher.Constraint("Equal", 0, 1),
    Sketcher.Constraint("Horizontal", 0, 3, 1, 3),
    Sketcher.Constraint("Diameter", 0, 4.0),
    Sketcher.Constraint("DistanceX", -1, 1, 0, 3, 113.0),
    Sketcher.Constraint("DistanceX", -1, 1, 1, 3, 43.0),
    Sketcher.Constraint("DistanceY", -1, 1, 0, 3, 7.5),
])
pocket7 = body.newObject("PartDesign::Pocket", "Pocket006")
pocket7.Profile = sketch8
pocket7.Length = 22
pocket7.Reversed = True

# Sketch on XZ plane
sketch9 = body.newObject("Sketcher::SketchObject", "Sketch008")
sketch9.AttachmentSupport = (doc.getObject("XZ_Plane"), [""])
sketch9.MapMode = "FlatFace"
sketch9.addGeometry([
    Part.LineSegment(Vector(117.041452, 7.5, 0), Vector(115.020726, 11, 0)),  # 0
    Part.LineSegment(Vector(115.020726, 11, 0), Vector(110.979274, 11, 0)),  # 1
    Part.LineSegment(Vector(110.979274, 11, 0), Vector(108.958548, 7.5, 0)),  # 2
    Part.LineSegment(Vector(108.958548, 7.5, 0), Vector(110.979274, 4, 0)),  # 3
    Part.LineSegment(Vector(110.979274, 4, 0), Vector(115.020726, 4, 0)),  # 4
    Part.LineSegment(Vector(115.020726, 4, 0), Vector(117.041452, 7.5, 0)),  # 5
    Part.LineSegment(Vector(38.958548, 7.5, 0), Vector(40.979274, 4, 0)),  # 6
    Part.LineSegment(Vector(40.979274, 4, 0), Vector(45.020726, 4, 0)),  # 7
    Part.LineSegment(Vector(45.020726, 4, 0), Vector(47.041452, 7.5, 0)),  # 8
    Part.LineSegment(Vector(47.041452, 7.5, 0), Vector(45.020726, 11, 0)),  # 9
    Part.LineSegment(Vector(45.020726, 11, 0), Vector(40.979274, 11, 0)),  # 10
    Part.LineSegment(Vector(40.979274, 11, 0), Vector(38.958548, 7.5, 0)),  # 11
], False)
sketch9.addConstraint([
    Sketcher.Constraint("Coincident", 0, 2, 1, 1),
    Sketcher.Constraint("Coincident", 1, 2, 2, 1),
    Sketcher.Constraint("Coincident", 2, 2, 3, 1),
    Sketcher.Constraint("Coincident", 3, 2, 4, 1),
    Sketcher.Constraint("Coincident", 4, 2, 5, 1),
    Sketcher.Constraint("Coincident", 5, 2, 0, 1),
    Sketcher.Constraint("Coincident", 6, 2, 7, 1),
    Sketcher.Constraint("Coincident", 7, 2, 8, 1),
    Sketcher.Constraint("Coincident", 8, 2, 9, 1),
    Sketcher.Constraint("Coincident", 9, 2, 10, 1),
    Sketcher.Constraint("Coincident", 10, 2, 11, 1),
    Sketcher.Constraint("Coincident", 11, 2, 6, 1),
    Sketcher.Constraint("Horizontal", 1),
    Sketcher.Constraint("Horizontal", 4),
    Sketcher.Constraint("Horizontal", 7),
    Sketcher.Constraint("Horizontal", 10),
    Sketcher.Constraint("Parallel", 0, 3),
    Sketcher.Constraint("Parallel", 2, 5),
    Sketcher.Constraint("Parallel", 3, 6),
    Sketcher.Constraint("Parallel", 5, 8),
    Sketcher.Constraint("Parallel", 6, 9),
    Sketcher.Constraint("Parallel", 8, 11),
    Sketcher.Constraint("Horizontal", 2, 2, 5, 2),
    Sketcher.Constraint("Horizontal", 4, 2, 6, 2),
    Sketcher.Constraint("Horizontal", 5, 2, 8, 2),
    Sketcher.Constraint("Horizontal", 1, 2, 9, 2),
    Sketcher.Constraint("Horizontal", 8, 2, 11, 2),
    Sketcher.Constraint("Vertical", 1, 2, 3, 2),
    Sketcher.Constraint("Vertical", 0, 2, 4, 2),
    Sketcher.Constraint("Equal", 4, 7),
    Sketcher.Constraint("Angle", 0, Q("120 deg")),
    Sketcher.Constraint("DistanceY", -1, 1, 0, 2, 11.0),
    Sketcher.Constraint("DistanceY", -1, 1, 3, 2, 4.0),
    Sketcher.Constraint("DistanceX", 6, 2, 3, 2, 70.0),
    Sketcher.Constraint("DistanceX", 1, 2, 1, 1, 4.041452),
    Sketcher.Constraint("DistanceX", -1, 1, 2, 2, 108.958548),
])
pocket8 = body.newObject("PartDesign::Pocket", "Pocket007")
pocket8.Profile = sketch9
pocket8.Length = 3

# Sketch on XZ plane
sketch10 = body.newObject("Sketcher::SketchObject", "Sketch009")
sketch10.AttachmentSupport = (doc.getObject("XZ_Plane"), [""])
sketch10.MapMode = "FlatFace"
sketch10.AttachmentOffset = App.Placement(Vector(0, 0, -15), App.Rotation())
sketch10.addGeometry([
    Part.LineSegment(Vector(118, 0, 0), Vector(118, 15, 0)),  # 0
    Part.LineSegment(Vector(118, 15, 0), Vector(156, 15, 0)),  # 1
    Part.LineSegment(Vector(156, 15, 0), Vector(156, 0, 0)),  # 2
    Part.LineSegment(Vector(156, 0, 0), Vector(118, 0, 0)),  # 3
    Part.LineSegment(Vector(0, 0, 0), Vector(0, 15, 0)),  # 4
    Part.LineSegment(Vector(0, 15, 0), Vector(38, 15, 0)),  # 5
    Part.LineSegment(Vector(38, 15, 0), Vector(38, 0, 0)),  # 6
    Part.LineSegment(Vector(38, 0, 0), Vector(0, 0, 0)),  # 7
], False)
sketch10.addConstraint([
    Sketcher.Constraint("Coincident", 0, 2, 1, 1),
    Sketcher.Constraint("Coincident", 1, 2, 2, 1),
    Sketcher.Constraint("Coincident", 2, 2, 3, 1),
    Sketcher.Constraint("Coincident", 3, 2, 0, 1),
    Sketcher.Constraint("Coincident", 4, 2, 5, 1),
    Sketcher.Constraint("Coincident", 5, 2, 6, 1),
    Sketcher.Constraint("Coincident", 6, 2, 7, 1),
    Sketcher.Constraint("Coincident", 7, 2, 4, 1),
    Sketcher.Constraint("Vertical", 0),
    Sketcher.Constraint("Horizontal", 1),
    Sketcher.Constraint("Vertical", 2),
    Sketcher.Constraint("Horizontal", 3),
    Sketcher.Constraint("Vertical", 4),
    Sketcher.Constraint("Horizontal", 5),
    Sketcher.Constraint("Vertical", 6),
    Sketcher.Constraint("Horizontal", 7),
    Sketcher.Constraint("Coincident", 7, 2, -1, 1),
    Sketcher.Constraint("PointOnObject", 2, 2, -1),
    Sketcher.Constraint("Horizontal", 1, 2, 4, 2),
    Sketcher.Constraint("Equal", 3, 5),
    Sketcher.Constraint("DistanceX", 1, 1, 1, 2, 38.0),
    Sketcher.Constraint("DistanceY", 0, 1, 0, 2, 15.0),
    Sketcher.Constraint("DistanceX", -1, 1, 0, 2, 118.0),
])
pocket9 = body.newObject("PartDesign::Pocket", "Pocket008")
pocket9.Profile = sketch10
pocket9.Length = 20
pocket9.Reversed = True

# Sketch on XZ plane
sketch11 = body.newObject("Sketcher::SketchObject", "Sketch010")
sketch11.AttachmentSupport = (doc.getObject("XZ_Plane"), [""])
sketch11.MapMode = "FlatFace"
sketch11.AttachmentOffset = App.Placement(Vector(0, 0, -15), App.Rotation())
sketch11.addGeometry([
    Part.LineSegment(Vector(118, 15, 0), Vector(118, 13.5, 0)),  # 0
    Part.ArcOfCircle(Part.Circle(Vector(116.5, 13.5, 0), Vector(0, 0, 1), 1.5), math.radians(0), math.radians(90)),  # 1
    Part.LineSegment(Vector(116.5, 15, 0), Vector(118, 15, 0)),  # 2
    Part.LineSegment(Vector(118, 0, 0), Vector(116.5, 0, 0)),  # 3
    Part.ArcOfCircle(Part.Circle(Vector(116.5, 1.5, 0), Vector(0, 0, 1), 1.5), math.radians(-90), math.radians(0)),  # 4
    Part.LineSegment(Vector(118, 1.5, 0), Vector(118, 0, 0)),  # 5
    Part.LineSegment(Vector(39.5, 0, 0), Vector(38, 0, 0)),  # 6
    Part.LineSegment(Vector(38, 0, 0), Vector(38, 1.5, 0)),  # 7
    Part.ArcOfCircle(Part.Circle(Vector(39.5, 1.5, 0), Vector(0, 0, 1), 1.5), math.radians(180), math.radians(270)),  # 8
    Part.LineSegment(Vector(38, 15, 0), Vector(39.5, 15, 0)),  # 9
    Part.ArcOfCircle(Part.Circle(Vector(39.5, 13.5, 0), Vector(0, 0, 1), 1.5), math.radians(90), math.radians(180)),  # 10
    Part.LineSegment(Vector(38, 13.5, 0), Vector(38, 15, 0)),  # 11
], False)
sketch11.addConstraint([
    Sketcher.Constraint("Tangent", 0, 2, 1, 1),
    Sketcher.Constraint("Tangent", 1, 2, 2, 1),
    Sketcher.Constraint("Coincident", 2, 2, 0, 1),
    Sketcher.Constraint("Tangent", 3, 2, 4, 1),
    Sketcher.Constraint("Tangent", 4, 2, 5, 1),
    Sketcher.Constraint("Coincident", 5, 2, 3, 1),
    Sketcher.Constraint("Coincident", 6, 2, 7, 1),
    Sketcher.Constraint("Tangent", 7, 2, 8, 1),
    Sketcher.Constraint("Tangent", 8, 2, 6, 1),
    Sketcher.Constraint("Tangent", 9, 2, 10, 1),
    Sketcher.Constraint("Tangent", 10, 2, 11, 1),
    Sketcher.Constraint("Coincident", 11, 2, 9, 1),
    Sketcher.Constraint("Vertical", 0),
    Sketcher.Constraint("Horizontal", 2),
    Sketcher.Constraint("Horizontal", 3),
    Sketcher.Constraint("Vertical", 5),
    Sketcher.Constraint("Horizontal", 6),
    Sketcher.Constraint("Vertical", 7),
    Sketcher.Constraint("Horizontal", 9),
    Sketcher.Constraint("Vertical", 11),
    Sketcher.Constraint("Equal", 1, 4),
    Sketcher.Constraint("Equal", 4, 8),
    Sketcher.Constraint("Equal", 8, 10),
    Sketcher.Constraint("PointOnObject", 3, 2, -1),
    Sketcher.Constraint("PointOnObject", 6, 2, -1),
    Sketcher.Constraint("Horizontal", 1, 3, 10, 3),
    Sketcher.Constraint("Vertical", 1, 3, 4, 3),
    Sketcher.Constraint("Vertical", 8, 3, 10, 3),
    Sketcher.Constraint("Radius", 1, 1.5),
    Sketcher.Constraint("DistanceX", -1, 1, 0, 2, 118.0),
    Sketcher.Constraint("DistanceY", -1, 1, 1, 2, 15.0),
    Sketcher.Constraint("DistanceX", -1, 1, 6, 2, 38.0),
])
pocket10 = body.newObject("PartDesign::Pocket", "Pocket009")
pocket10.Profile = sketch11
pocket10.Length = 20
pocket10.Reversed = True

doc.recompute()
